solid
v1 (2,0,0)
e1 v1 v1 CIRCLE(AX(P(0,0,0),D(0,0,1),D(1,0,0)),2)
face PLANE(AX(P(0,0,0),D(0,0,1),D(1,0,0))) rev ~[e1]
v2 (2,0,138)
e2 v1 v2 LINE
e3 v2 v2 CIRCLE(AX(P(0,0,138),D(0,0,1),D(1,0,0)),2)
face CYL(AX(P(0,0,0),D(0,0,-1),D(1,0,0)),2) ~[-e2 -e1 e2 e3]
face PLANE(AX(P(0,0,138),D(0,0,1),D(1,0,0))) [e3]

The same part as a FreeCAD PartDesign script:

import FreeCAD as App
import Part
import Sketcher
from FreeCAD import Vector
Q = App.Units.Quantity

doc = App.newDocument("Part")
params = doc.addObject("Spreadsheet::Sheet", "Params")
for row, (alias, value) in enumerate([
    ("sketch1_diameter", "4 mm"),
    ("pad1_length", "138 mm"),
], start=1):
    params.set(f"A{row}", alias)
    params.set(f"B{row}", "=" + value)
    params.setAlias(f"B{row}", alias)

body = doc.addObject("PartDesign::Body", "Body")

# Sketch on XY plane
sketch1 = body.newObject("Sketcher::SketchObject", "Sketch")
sketch1.AttachmentSupport = (doc.getObject("XY_Plane"), [""])
sketch1.MapMode = "FlatFace"
sketch1.addGeometry(Part.Circle(Vector(0, 0, 0), Vector(0, 0, 1), 2), False)
sketch1.addConstraint(Sketcher.Constraint("Coincident", 0, 3, -1, 1))
sketch1.addConstraint(Sketcher.Constraint("Diameter", 0, Q("4 mm")))
sketch1.setExpression("Constraints[1]", "Params.sketch1_diameter")
pad1 = body.newObject("PartDesign::Pad", "Pad")
pad1.Profile = sketch1
pad1.setExpression("Length", "Params.pad1_length")

doc.recompute()
